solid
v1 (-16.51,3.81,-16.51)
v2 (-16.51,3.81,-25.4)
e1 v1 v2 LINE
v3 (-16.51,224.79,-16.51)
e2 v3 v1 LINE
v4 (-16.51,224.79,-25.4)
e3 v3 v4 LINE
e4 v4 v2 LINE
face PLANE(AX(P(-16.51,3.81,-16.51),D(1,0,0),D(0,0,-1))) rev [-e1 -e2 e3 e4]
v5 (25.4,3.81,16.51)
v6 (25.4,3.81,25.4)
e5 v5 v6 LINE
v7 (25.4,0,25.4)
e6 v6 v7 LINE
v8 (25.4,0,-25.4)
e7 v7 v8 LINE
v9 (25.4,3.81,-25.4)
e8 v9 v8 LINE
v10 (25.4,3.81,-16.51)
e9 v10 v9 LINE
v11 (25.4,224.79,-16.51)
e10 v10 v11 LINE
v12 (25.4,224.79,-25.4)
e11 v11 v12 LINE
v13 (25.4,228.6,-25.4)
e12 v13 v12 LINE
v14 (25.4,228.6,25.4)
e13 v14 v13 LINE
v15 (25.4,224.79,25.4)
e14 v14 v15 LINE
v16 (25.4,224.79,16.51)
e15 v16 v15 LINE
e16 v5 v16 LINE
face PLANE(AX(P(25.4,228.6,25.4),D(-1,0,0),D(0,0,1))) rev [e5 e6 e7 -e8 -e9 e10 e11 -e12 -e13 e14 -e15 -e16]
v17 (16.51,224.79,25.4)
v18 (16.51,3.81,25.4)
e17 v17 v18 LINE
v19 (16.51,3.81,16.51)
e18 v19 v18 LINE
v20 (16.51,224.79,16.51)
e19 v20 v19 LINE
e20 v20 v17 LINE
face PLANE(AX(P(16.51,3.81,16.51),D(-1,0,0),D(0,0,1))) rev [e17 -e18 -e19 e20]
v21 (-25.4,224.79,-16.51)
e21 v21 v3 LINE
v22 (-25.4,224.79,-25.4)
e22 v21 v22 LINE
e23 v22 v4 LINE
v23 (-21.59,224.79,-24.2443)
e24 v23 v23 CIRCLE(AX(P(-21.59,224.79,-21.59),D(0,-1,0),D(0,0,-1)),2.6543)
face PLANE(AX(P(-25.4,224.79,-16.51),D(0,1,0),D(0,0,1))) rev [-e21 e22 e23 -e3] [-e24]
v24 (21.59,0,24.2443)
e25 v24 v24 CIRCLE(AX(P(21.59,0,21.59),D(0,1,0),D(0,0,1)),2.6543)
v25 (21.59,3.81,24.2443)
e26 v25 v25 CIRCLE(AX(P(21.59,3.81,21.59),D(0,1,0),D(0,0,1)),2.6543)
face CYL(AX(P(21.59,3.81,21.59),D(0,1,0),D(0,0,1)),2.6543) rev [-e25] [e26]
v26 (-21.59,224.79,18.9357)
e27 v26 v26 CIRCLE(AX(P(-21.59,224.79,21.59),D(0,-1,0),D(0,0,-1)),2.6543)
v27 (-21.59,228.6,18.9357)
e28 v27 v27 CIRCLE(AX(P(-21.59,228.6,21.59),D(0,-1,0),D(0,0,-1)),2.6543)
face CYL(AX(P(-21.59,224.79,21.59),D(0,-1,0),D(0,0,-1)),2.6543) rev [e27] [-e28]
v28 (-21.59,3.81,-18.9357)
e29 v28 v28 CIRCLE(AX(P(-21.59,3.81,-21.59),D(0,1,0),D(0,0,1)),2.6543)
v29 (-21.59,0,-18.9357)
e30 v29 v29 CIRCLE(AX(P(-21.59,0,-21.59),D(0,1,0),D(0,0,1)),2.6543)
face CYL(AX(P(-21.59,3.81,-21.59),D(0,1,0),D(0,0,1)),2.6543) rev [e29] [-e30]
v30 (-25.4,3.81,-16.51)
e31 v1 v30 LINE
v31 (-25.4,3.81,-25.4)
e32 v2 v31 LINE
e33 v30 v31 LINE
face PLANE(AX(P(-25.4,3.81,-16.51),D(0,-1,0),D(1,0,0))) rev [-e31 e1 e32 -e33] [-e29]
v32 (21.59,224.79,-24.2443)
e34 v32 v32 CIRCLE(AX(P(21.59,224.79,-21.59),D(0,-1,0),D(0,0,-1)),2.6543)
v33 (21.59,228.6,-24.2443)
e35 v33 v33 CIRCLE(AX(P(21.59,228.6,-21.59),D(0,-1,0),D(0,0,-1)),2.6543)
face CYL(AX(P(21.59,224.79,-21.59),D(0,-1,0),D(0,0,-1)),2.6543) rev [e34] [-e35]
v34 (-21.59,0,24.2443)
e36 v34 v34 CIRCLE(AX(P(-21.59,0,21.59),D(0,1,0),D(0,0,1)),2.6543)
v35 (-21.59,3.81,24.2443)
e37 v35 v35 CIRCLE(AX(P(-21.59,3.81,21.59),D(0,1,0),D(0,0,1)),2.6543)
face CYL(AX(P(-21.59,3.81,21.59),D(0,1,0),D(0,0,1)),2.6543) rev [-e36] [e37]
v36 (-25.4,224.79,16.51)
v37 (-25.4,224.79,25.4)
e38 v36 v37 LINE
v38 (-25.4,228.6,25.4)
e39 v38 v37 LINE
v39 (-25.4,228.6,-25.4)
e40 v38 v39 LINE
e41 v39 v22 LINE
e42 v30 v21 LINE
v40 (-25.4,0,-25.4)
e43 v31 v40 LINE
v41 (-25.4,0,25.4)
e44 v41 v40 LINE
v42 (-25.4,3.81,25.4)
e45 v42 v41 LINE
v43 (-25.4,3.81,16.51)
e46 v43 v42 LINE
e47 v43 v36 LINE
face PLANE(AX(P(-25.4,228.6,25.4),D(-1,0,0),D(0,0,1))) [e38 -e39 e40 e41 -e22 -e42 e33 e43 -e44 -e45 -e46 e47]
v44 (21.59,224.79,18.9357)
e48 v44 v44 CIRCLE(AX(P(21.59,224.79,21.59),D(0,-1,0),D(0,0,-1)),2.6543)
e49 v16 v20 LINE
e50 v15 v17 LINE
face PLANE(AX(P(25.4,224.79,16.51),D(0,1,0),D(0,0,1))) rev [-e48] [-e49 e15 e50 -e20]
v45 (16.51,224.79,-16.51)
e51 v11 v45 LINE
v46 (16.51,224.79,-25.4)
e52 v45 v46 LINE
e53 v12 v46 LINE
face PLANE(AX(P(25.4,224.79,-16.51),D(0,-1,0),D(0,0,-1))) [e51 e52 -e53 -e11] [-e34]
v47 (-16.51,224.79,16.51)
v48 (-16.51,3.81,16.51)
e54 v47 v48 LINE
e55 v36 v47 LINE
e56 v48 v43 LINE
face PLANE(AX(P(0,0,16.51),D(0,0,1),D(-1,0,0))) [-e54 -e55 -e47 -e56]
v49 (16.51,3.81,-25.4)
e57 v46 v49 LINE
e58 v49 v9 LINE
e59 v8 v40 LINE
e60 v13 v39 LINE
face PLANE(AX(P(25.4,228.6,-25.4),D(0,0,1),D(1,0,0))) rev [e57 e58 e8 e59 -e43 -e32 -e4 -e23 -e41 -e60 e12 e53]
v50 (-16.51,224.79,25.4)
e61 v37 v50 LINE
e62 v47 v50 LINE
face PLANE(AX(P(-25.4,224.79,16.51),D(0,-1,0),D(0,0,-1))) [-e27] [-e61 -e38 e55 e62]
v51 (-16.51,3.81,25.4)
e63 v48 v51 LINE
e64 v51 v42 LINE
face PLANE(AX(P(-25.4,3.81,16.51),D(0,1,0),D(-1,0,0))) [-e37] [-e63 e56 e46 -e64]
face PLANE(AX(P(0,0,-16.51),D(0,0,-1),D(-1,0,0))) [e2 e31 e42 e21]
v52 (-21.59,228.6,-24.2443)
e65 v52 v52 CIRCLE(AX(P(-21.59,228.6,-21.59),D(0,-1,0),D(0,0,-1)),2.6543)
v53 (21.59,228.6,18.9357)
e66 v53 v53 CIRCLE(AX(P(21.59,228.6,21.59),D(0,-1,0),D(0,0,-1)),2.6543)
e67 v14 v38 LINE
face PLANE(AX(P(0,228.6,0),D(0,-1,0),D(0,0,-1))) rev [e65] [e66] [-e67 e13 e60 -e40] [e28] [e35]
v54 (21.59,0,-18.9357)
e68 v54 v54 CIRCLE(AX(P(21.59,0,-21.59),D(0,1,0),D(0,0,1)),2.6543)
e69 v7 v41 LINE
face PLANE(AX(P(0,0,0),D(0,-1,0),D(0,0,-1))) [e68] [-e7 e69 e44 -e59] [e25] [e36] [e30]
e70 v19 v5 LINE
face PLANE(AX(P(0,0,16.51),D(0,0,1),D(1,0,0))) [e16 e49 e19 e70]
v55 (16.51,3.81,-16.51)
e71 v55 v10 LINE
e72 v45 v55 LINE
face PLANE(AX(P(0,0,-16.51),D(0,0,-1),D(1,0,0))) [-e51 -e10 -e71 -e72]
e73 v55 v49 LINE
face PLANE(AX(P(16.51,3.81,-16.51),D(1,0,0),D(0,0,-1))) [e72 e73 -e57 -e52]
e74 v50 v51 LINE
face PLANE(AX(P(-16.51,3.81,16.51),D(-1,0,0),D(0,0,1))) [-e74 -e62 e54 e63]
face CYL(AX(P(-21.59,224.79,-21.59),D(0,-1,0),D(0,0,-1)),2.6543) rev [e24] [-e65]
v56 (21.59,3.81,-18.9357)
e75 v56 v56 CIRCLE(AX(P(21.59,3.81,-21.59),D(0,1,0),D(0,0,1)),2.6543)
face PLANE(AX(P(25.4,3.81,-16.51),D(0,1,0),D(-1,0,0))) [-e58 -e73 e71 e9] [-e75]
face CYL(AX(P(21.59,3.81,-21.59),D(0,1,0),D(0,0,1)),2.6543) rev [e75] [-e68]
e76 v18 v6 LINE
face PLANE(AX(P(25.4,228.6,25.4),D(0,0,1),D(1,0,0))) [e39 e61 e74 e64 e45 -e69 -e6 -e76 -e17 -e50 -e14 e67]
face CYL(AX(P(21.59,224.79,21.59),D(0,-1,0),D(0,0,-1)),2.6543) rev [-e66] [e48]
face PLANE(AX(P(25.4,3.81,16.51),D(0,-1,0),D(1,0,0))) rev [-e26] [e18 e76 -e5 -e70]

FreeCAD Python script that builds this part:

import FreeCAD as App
import Part
import Sketcher
Q = App.Units.Quantity

doc = App.newDocument("Part")
body = doc.addObject("PartDesign::Body", "Body")

sketch1 = doc.addObject("Sketcher::SketchObject", "Sketch")
body.addObject(sketch1)
sketch1.AttachmentSupport = (doc.XZ_Plane, [""])
sketch1.MapMode = "FlatFace"
sketch1.addGeometry([
    Part.LineSegment(App.Vector(-25, -25, 0), App.Vector(-25, 25, 0)),
    Part.LineSegment(App.Vector(-25, 25, 0), App.Vector(25, 25, 0)),
    Part.LineSegment(App.Vector(25, 25, 0), App.Vector(25, -25, 0)),
    Part.LineSegment(App.Vector(25, -25, 0), App.Vector(-25, -25, 0)),
], False)
sketch1.addConstraint([
    Sketcher.Constraint("Coincident", 0, 2, 1, 1),
    Sketcher.Constraint("Coincident", 1, 2, 2, 1),
    Sketcher.Constraint("Coincident", 2, 2, 3, 1),
    Sketcher.Constraint("Coincident", 3, 2, 0, 1),
    Sketcher.Constraint("Vertical", 0),
    Sketcher.Constraint("Horizontal", 1),
    Sketcher.Constraint("Vertical", 2),
    Sketcher.Constraint("Horizontal", 3),
    Sketcher.Constraint("Symmetric", 0, 2, 2, 2, -1, 1),
    Sketcher.Constraint("Equal", 3, 0),
    Sketcher.Constraint("DistanceX", 1, 1, 1, 2, Q("2 in")),
])
pad1 = doc.addObject("PartDesign::Pad", "Pad")
body.addObject(pad1)
pad1.Profile = sketch1
pad1.Length = Q("9 in")
pad1.Reversed = True

sketch2 = doc.addObject("Sketcher::SketchObject", "Sketch001")
body.addObject(sketch2)
sketch2.AttachmentSupport = (doc.XY_Plane, [""])
sketch2.MapMode = "FlatFace"
sketch2.AttachmentOffset = App.Placement(App.Vector(0, 0, 1 * 25.4), App.Rotation())
sketch2.addGeometry([
    Part.LineSegment(App.Vector(17, 225, 0), App.Vector(17, 4, 0)),
    Part.LineSegment(App.Vector(17, 4, 0), App.Vector(25, 4, 0)),
    Part.LineSegment(App.Vector(25, 4, 0), App.Vector(25, 225, 0)),
    Part.LineSegment(App.Vector(25, 225, 0), App.Vector(17, 225, 0)),
], False)
sketch2.addConstraint([
    Sketcher.Constraint("Coincident", 0, 2, 1, 1),
    Sketcher.Constraint("Coincident", 1, 2, 2, 1),
    Sketcher.Constraint("Coincident", 2, 2, 3, 1),
    Sketcher.Constraint("Coincident", 3, 2, 0, 1),
    Sketcher.Constraint("Vertical", 0),
    Sketcher.Constraint("Horizontal", 1),
    Sketcher.Constraint("Vertical", 2),
    Sketcher.Constraint("Horizontal", 3),
    Sketcher.Constraint("DistanceY", 0, 2, 0, 1, Q("8.7 in")),
    Sketcher.Constraint("DistanceX", -1, 1, 1, 2, Q("1 in")),
    Sketcher.Constraint("DistanceX", 1, 1, 1, 2, Q("0.35 in")),
    Sketcher.Constraint("DistanceY", -1, 1, 0, 2, Q("0.15 in")),
])
pocket1 = doc.addObject("PartDesign::Pocket", "Pocket")
body.addObject(pocket1)
pocket1.Profile = sketch2
pocket1.Length = Q("0.35 in")

sketch3 = doc.addObject("Sketcher::SketchObject", "Sketch002")
body.addObject(sketch3)
sketch3.AttachmentSupport = (doc.XZ_Plane, [""])
sketch3.MapMode = "FlatFace"
sketch3.AttachmentOffset = App.Placement(App.Vector(0, 0, -0.15 * 25.4), App.Rotation())
sketch3.addGeometry(Part.Circle(App.Vector(21.6, 21.6, 0), App.Vector(0, 0, 1), 2.7), False)
sketch3.addConstraint([
    Sketcher.Constraint("Diameter", 0, Q("0.209 in")),
    Sketcher.Constraint("DistanceX", -1, 1, 0, 3, Q("0.85 in")),
    Sketcher.Constraint("DistanceY", -1, 1, 0, 3, Q("0.85 in")),
])
doc.recompute()
hole = doc.addObject("PartDesign::Hole", "Hole")
body.addObject(hole)
hole.Profile = sketch3
hole.ThreadType = "None"
hole.Diameter = Q("0.209 in")
hole.DepthType = "Dimension"
hole.Depth = Q("0.15 in")
hole.DrillPoint = "Flat"
hole.Reversed = True

sketch4 = doc.addObject("Sketcher::SketchObject", "Sketch003")
body.addObject(sketch4)
sketch4.AttachmentSupport = (doc.XZ_Plane, [""])
sketch4.MapMode = "FlatFace"
sketch4.AttachmentOffset = App.Placement(App.Vector(0, 0, -8.85 * 25.4), App.Rotation())
sketch4.addGeometry(Part.Circle(App.Vector(21.6, 21.6, 0), App.Vector(0, 0, 1), 2.7), False)
sketch4.addConstraint([
    Sketcher.Constraint("Diameter", 0, Q("0.209 in")),
    Sketcher.Constraint("DistanceX", -1, 1, 0, 3, Q("0.85 in")),
    Sketcher.Constraint("DistanceY", -1, 1, 0, 3, Q("0.85 in")),
])
doc.recompute()
hole2 = doc.addObject("PartDesign::Hole", "Hole001")
body.addObject(hole2)
hole2.Profile = sketch4
hole2.ThreadType = "None"
hole2.Diameter = Q("0.209 in")
hole2.DepthType = "ThroughAll"
doc.recompute()

mirrored = doc.addObject("PartDesign::Mirrored", "Mirrored")
body.addObject(mirrored)
mirrored.Originals = [pocket1, hole, hole2]
mirrored.MirrorPlane = (doc.YZ_Plane, [""])
body.Tip = mirrored
doc.recompute()

mirrored2 = doc.addObject("PartDesign::Mirrored", "Mirrored001")
body.addObject(mirrored2)
mirrored2.Originals = [pocket1, hole, hole2]
mirrored2.MirrorPlane = (doc.XY_Plane, [""])
body.Tip = mirrored2

sketch5 = doc.addObject("Sketcher::SketchObject", "Sketch004")
body.addObject(sketch5)
sketch5.AttachmentSupport = (doc.XY_Plane, [""])
sketch5.MapMode = "FlatFace"
sketch5.AttachmentOffset = App.Placement(App.Vector(0, 0, -1 * 25.4), App.Rotation())
sketch5.addGeometry([
    Part.LineSegment(App.Vector(-17, 225, 0), App.Vector(-17, 4, 0)),
    Part.LineSegment(App.Vector(-17, 4, 0), App.Vector(-25, 4, 0)),
    Part.LineSegment(App.Vector(-25, 4, 0), App.Vector(-25, 225, 0)),
    Part.LineSegment(App.Vector(-25, 225, 0), App.Vector(-17, 225, 0)),
], False)
sketch5.addConstraint([
    Sketcher.Constraint("Coincident", 0, 2, 1, 1),
    Sketcher.Constraint("Coincident", 1, 2, 2, 1),
    Sketcher.Constraint("Coincident", 2, 2, 3, 1),
    Sketcher.Constraint("Coincident", 3, 2, 0, 1),
    Sketcher.Constraint("Vertical", 0),
    Sketcher.Constraint("Horizontal", 1),
    Sketcher.Constraint("Vertical", 2),
    Sketcher.Constraint("Horizontal", 3),
    Sketcher.Constraint("DistanceY", 0, 2, 0, 1, Q("8.7 in")),
    Sketcher.Constraint("DistanceX", 1, 2, -1, 1, Q("1 in")),
    Sketcher.Constraint("DistanceX", 1, 2, 1, 1, Q("0.35 in")),
    Sketcher.Constraint("DistanceY", -1, 1, 0, 2, Q("0.15 in")),
])
pocket2 = doc.addObject("PartDesign::Pocket", "Pocket001")
body.addObject(pocket2)
pocket2.Profile = sketch5
pocket2.Length = Q("0.35 in")
pocket2.Reversed = True

sketch6 = doc.addObject("Sketcher::SketchObject", "Sketch005")
body.addObject(sketch6)
sketch6.AttachmentSupport = (doc.XZ_Plane, [""])
sketch6.MapMode = "FlatFace"
sketch6.AttachmentOffset = App.Placement(App.Vector(0, 0, -0.15 * 25.4), App.Rotation())
sketch6.addGeometry(Part.Circle(App.Vector(-21.6, -21.6, 0), App.Vector(0, 0, 1), 2.7), False)
sketch6.addConstraint([
    Sketcher.Constraint("Diameter", 0, Q("0.209 in")),
    Sketcher.Constraint("DistanceX", 0, 3, -1, 1, Q("0.85 in")),
    Sketcher.Constraint("DistanceY", 0, 3, -1, 1, Q("0.85 in")),
])
doc.recompute()
hole3 = doc.addObject("PartDesign::Hole", "Hole002")
body.addObject(hole3)
hole3.Profile = sketch6
hole3.ThreadType = "None"
hole3.Diameter = Q("0.209 in")
hole3.DepthType = "Dimension"
hole3.Depth = Q("0.15 in")
hole3.DrillPoint = "Flat"
hole3.Reversed = True

sketch7 = doc.addObject("Sketcher::SketchObject", "Sketch006")
body.addObject(sketch7)
sketch7.AttachmentSupport = (doc.XZ_Plane, [""])
sketch7.MapMode = "FlatFace"
sketch7.AttachmentOffset = App.Placement(App.Vector(0, 0, -8.85 * 25.4), App.Rotation())
sketch7.addGeometry(Part.Circle(App.Vector(-21.6, -21.6, 0), App.Vector(0, 0, 1), 2.7), False)
sketch7.addConstraint([
    Sketcher.Constraint("Diameter", 0, Q("0.209 in")),
    Sketcher.Constraint("DistanceX", 0, 3, -1, 1, Q("0.85 in")),
    Sketcher.Constraint("DistanceY", 0, 3, -1, 1, Q("0.85 in")),
])
doc.recompute()
hole4 = doc.addObject("PartDesign::Hole", "Hole003")
body.addObject(hole4)
hole4.Profile = sketch7
hole4.ThreadType = "None"
hole4.Diameter = Q("0.209 in")
hole4.DepthType = "ThroughAll"

doc.recompute()
